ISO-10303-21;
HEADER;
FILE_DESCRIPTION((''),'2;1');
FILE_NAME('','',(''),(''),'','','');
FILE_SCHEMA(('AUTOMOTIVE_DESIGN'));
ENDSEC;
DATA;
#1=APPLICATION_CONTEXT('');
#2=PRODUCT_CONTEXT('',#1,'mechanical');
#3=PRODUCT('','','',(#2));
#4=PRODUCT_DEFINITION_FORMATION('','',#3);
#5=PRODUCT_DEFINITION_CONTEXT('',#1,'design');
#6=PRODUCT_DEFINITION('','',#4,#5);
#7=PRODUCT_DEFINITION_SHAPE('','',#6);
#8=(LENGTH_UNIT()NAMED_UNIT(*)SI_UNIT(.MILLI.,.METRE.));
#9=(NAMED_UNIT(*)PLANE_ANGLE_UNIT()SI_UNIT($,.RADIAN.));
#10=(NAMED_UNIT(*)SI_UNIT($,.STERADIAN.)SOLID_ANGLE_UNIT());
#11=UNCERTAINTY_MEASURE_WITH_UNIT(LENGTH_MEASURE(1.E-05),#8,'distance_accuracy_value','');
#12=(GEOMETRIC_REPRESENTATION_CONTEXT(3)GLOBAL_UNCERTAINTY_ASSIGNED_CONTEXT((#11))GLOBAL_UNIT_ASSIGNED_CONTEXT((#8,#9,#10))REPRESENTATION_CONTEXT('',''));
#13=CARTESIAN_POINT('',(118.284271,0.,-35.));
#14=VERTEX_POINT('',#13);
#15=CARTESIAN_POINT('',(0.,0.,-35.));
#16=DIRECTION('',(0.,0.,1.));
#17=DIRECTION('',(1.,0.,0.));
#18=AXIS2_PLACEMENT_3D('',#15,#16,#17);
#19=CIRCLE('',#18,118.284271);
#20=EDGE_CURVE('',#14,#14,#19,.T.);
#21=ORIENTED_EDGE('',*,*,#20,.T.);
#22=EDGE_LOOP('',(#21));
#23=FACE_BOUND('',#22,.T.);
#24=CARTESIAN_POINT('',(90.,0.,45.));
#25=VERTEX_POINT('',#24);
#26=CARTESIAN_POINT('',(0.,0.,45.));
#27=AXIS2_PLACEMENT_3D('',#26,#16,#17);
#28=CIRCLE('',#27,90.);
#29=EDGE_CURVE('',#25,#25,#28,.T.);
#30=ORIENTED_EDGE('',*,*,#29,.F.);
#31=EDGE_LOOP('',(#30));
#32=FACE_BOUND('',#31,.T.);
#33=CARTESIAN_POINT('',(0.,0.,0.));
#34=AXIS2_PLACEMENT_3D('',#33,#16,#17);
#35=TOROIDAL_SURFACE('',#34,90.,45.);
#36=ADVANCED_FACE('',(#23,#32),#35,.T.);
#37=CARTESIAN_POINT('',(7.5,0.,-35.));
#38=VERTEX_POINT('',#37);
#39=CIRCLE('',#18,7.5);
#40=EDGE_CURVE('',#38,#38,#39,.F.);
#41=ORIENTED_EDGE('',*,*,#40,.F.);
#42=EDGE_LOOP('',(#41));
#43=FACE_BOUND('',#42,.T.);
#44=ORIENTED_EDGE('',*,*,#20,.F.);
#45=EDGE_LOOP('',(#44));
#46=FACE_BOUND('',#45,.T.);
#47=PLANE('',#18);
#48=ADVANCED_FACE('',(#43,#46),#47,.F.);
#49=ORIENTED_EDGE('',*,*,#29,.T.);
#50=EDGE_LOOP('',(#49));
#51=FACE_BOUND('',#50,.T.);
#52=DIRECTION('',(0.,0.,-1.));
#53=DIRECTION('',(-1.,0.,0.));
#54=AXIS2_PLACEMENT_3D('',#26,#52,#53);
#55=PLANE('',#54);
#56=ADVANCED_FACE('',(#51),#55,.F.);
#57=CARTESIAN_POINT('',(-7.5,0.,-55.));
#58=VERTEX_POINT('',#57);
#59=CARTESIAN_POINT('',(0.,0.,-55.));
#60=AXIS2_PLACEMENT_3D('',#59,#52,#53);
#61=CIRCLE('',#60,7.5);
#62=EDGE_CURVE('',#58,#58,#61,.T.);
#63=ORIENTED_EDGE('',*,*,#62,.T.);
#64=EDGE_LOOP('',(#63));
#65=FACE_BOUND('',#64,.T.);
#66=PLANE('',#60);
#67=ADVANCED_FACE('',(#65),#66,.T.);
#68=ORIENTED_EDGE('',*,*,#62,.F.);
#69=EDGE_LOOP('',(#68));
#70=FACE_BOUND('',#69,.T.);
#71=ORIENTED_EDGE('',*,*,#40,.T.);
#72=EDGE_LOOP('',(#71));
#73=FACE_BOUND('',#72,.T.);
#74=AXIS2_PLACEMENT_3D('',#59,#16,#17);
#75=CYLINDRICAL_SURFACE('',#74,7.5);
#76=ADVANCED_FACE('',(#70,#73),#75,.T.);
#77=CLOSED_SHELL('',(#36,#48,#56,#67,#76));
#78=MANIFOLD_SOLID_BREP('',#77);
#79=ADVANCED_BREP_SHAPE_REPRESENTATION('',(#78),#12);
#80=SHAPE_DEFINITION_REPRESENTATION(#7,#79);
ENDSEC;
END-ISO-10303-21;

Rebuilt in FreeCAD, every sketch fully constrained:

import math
import FreeCAD as App
import Part
import Sketcher
Q = App.Units.Quantity

doc = App.newDocument("Part")
body = doc.addObject("PartDesign::Body", "Body")

# Sketch on YZ plane
sketch1 = doc.addObject("Sketcher::SketchObject", "Sketch")
body.addObject(sketch1)
sketch1.AttachmentSupport = (doc.YZ_Plane, [""])
sketch1.MapMode = "FlatFace"
sketch1.addGeometry([
    Part.ArcOfCircle(Part.Circle(App.Vector(90, 0, 0), App.Vector(0, 0, 1), 45), math.radians(0), math.radians(90)),  # 0
    Part.LineSegment(App.Vector(90, 45, 0), App.Vector(0, 45, 0)),  # 1
    Part.LineSegment(App.Vector(0, 45, 0), App.Vector(0, -35, 0)),  # 2
    Part.LineSegment(App.Vector(0, -35, 0), App.Vector(118, -35, 0)),  # 3
    Part.ArcOfCircle(Part.Circle(App.Vector(90, 0, 0), App.Vector(0, 0, 1), 45), math.radians(-51), math.radians(0)),  # 4
], False)
sketch1.addConstraint([
    Sketcher.Constraint("Tangent", 0, 2, 1, 1),
    Sketcher.Constraint("Coincident", 1, 2, 2, 1),
    Sketcher.Constraint("Coincident", 2, 2, 3, 1),
    Sketcher.Constraint("Coincident", 3, 2, 4, 1),
    Sketcher.Constraint("Tangent", 4, 2, 0, 1),
    Sketcher.Constraint("Horizontal", 1),
    Sketcher.Constraint("Vertical", 2),
    Sketcher.Constraint("Horizontal", 3),
    Sketcher.Constraint("Equal", 0, 4),
    Sketcher.Constraint("PointOnObject", 0, 3, -1),
    Sketcher.Constraint("PointOnObject", 1, 2, -2),
    Sketcher.Constraint("PointOnObject", 4, 2, -1),
    Sketcher.Constraint("Radius", 0, Q("45 mm")),
    Sketcher.Constraint("DistanceX", 1, 2, 1, 1, Q("90 mm")),
    Sketcher.Constraint("DistanceY", 2, 2, 2, 1, Q("80 mm")),
])
revolution = doc.addObject("PartDesign::Revolution", "Revolution")
body.addObject(revolution)
revolution.Profile = sketch1
revolution.ReferenceAxis = (sketch1, ["V_Axis"])
revolution.Angle = 360

# Sketch on XY plane
sketch2 = doc.addObject("Sketcher::SketchObject", "Sketch001")
body.addObject(sketch2)
sketch2.AttachmentSupport = (doc.XY_Plane, [""])
sketch2.MapMode = "FlatFace"
sketch2.AttachmentOffset = App.Placement(App.Vector(0, 0, -35), App.Rotation())
sketch2.addGeometry(Part.Circle(App.Vector(0, 0, 0), App.Vector(0, 0, 1), 8), False)
sketch2.addConstraint([
    Sketcher.Constraint("Coincident", 0, 3, -1, 1),
    Sketcher.Constraint("Diameter", 0, Q("15 mm")),
])
pad1 = doc.addObject("PartDesign::Pad", "Pad")
body.addObject(pad1)
pad1.Profile = sketch2
pad1.Length = 20
pad1.Reversed = True

doc.recompute()
